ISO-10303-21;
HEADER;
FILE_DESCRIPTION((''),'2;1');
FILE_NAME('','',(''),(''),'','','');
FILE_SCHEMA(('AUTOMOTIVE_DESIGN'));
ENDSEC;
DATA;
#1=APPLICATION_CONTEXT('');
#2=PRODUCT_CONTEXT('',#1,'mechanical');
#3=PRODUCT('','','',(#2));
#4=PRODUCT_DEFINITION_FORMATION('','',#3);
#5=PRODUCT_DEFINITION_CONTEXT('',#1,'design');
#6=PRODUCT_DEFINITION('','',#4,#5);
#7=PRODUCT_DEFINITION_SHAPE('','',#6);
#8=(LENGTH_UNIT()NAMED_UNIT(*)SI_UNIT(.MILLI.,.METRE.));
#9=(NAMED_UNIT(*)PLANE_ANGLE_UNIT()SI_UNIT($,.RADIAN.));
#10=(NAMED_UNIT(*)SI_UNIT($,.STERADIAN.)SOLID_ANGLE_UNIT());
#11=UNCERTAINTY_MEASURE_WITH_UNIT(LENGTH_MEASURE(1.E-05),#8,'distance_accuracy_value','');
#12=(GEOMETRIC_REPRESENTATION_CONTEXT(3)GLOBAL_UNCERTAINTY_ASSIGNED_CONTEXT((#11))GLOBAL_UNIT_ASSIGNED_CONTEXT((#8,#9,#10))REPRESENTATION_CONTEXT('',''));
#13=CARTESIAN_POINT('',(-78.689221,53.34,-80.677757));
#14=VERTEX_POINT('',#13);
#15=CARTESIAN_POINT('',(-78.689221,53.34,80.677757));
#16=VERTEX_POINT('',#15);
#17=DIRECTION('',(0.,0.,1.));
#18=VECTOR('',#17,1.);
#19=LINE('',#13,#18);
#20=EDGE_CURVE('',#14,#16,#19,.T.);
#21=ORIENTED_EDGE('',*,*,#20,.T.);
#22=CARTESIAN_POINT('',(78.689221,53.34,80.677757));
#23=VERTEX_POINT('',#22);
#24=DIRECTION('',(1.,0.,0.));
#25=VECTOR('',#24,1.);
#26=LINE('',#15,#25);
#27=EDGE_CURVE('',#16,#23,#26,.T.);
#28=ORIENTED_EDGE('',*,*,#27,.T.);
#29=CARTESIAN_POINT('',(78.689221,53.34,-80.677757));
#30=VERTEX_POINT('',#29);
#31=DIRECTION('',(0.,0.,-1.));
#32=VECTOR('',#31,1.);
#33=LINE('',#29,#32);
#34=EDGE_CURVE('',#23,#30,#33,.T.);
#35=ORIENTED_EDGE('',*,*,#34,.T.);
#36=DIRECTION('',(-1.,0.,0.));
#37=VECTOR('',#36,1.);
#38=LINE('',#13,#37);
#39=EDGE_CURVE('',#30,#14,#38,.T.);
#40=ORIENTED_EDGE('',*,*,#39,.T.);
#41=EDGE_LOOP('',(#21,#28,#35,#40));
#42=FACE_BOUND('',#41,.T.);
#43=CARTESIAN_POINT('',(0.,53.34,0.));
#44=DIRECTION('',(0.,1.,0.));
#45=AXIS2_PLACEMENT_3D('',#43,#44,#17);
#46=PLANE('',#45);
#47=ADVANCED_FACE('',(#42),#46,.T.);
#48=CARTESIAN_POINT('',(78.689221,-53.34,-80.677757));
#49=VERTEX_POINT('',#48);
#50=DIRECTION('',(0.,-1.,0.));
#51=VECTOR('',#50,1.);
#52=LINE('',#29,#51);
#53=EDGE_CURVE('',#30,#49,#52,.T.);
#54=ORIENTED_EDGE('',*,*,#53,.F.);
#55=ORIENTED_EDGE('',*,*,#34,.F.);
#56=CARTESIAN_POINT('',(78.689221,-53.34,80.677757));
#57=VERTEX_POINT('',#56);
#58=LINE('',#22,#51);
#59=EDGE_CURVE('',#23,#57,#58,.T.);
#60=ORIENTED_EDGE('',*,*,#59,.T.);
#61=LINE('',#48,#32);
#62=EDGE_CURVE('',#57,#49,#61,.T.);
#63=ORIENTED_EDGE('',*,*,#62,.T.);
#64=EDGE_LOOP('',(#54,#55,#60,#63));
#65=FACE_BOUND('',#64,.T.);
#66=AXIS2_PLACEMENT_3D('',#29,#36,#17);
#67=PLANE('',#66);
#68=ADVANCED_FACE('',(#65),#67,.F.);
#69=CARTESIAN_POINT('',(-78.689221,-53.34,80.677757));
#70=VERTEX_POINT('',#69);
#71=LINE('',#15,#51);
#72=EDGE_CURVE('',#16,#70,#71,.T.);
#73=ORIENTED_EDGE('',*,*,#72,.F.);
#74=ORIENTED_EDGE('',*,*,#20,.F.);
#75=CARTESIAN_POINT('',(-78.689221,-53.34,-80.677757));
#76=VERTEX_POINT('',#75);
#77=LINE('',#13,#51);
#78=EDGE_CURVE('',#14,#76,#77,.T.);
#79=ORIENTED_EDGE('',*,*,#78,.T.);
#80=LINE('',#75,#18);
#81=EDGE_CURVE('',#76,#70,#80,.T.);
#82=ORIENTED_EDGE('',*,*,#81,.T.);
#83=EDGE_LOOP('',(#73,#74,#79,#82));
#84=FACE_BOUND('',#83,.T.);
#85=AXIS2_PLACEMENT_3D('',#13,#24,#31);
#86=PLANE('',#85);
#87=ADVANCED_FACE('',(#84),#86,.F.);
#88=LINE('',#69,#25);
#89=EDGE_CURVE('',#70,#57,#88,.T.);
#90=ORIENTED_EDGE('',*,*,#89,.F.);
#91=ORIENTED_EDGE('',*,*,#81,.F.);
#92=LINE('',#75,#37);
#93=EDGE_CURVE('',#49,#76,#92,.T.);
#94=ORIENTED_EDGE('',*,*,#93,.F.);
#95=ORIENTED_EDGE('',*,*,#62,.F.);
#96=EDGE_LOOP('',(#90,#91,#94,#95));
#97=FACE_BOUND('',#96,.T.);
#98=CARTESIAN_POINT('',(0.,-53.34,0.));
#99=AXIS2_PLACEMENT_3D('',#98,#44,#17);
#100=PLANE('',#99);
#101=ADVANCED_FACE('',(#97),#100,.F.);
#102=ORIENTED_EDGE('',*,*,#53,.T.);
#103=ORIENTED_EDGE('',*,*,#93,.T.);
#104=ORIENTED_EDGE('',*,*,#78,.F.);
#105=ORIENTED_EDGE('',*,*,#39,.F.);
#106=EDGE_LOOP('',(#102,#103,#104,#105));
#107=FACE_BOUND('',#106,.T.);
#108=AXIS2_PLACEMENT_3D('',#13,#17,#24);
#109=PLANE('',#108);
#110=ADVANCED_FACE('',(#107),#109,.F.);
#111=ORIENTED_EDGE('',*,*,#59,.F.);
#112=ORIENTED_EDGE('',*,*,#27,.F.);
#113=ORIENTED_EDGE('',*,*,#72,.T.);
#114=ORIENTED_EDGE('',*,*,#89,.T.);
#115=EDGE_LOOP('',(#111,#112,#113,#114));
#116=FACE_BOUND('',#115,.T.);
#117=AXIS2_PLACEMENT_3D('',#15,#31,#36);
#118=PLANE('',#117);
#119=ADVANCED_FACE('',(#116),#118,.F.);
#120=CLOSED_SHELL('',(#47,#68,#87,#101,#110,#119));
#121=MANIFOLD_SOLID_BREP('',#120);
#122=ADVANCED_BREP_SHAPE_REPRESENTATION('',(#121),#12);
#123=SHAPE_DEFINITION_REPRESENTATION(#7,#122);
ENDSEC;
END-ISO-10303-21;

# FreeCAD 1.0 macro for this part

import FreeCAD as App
import Part
import Sketcher
Q = App.Units.Quantity


def add_polygon(sketch, points):
    """Adds a closed chain of lines whose ends are joined by coincident constraints."""
    first, n = sketch.GeometryCount, len(points)
    for a, b in zip(points, points[1:] + points[:1]):
        sketch.addGeometry(Part.LineSegment(App.Vector(*a, 0), App.Vector(*b, 0)), False)
    for i in range(n):
        sketch.addConstraint(Sketcher.Constraint("Coincident", first + i, 2, first + (i + 1) % n, 1))

doc = App.newDocument("Part")
body = doc.addObject("PartDesign::Body", "Body")

sketch1 = body.newObject("Sketcher::SketchObject", "Sketch")
sketch1.AttachmentSupport = (doc.getObject("XZ_Plane"), [""])
sketch1.MapMode = "FlatFace"
add_polygon(sketch1, [(-79, -81), (-79, 81), (79, 81), (79, -81)])
sketch1.addConstraint([
    Sketcher.Constraint("Vertical", 0),
    Sketcher.Constraint("Horizontal", 1),
    Sketcher.Constraint("Vertical", 2),
    Sketcher.Constraint("Horizontal", 3),
    Sketcher.Constraint("Symmetric", 0, 2, 2, 2, -1, 1),
    Sketcher.Constraint("DistanceX", 1, 1, 1, 2, Q("157.378442 mm")),
    Sketcher.Constraint("DistanceY", 0, 1, 0, 2, Q("161.355515 mm")),
])
pad1 = body.newObject("PartDesign::Pad", "Pad")
pad1.Profile = sketch1
pad1.Length = Q("4.2 in")
pad1.Midplane = True

doc.recompute()
